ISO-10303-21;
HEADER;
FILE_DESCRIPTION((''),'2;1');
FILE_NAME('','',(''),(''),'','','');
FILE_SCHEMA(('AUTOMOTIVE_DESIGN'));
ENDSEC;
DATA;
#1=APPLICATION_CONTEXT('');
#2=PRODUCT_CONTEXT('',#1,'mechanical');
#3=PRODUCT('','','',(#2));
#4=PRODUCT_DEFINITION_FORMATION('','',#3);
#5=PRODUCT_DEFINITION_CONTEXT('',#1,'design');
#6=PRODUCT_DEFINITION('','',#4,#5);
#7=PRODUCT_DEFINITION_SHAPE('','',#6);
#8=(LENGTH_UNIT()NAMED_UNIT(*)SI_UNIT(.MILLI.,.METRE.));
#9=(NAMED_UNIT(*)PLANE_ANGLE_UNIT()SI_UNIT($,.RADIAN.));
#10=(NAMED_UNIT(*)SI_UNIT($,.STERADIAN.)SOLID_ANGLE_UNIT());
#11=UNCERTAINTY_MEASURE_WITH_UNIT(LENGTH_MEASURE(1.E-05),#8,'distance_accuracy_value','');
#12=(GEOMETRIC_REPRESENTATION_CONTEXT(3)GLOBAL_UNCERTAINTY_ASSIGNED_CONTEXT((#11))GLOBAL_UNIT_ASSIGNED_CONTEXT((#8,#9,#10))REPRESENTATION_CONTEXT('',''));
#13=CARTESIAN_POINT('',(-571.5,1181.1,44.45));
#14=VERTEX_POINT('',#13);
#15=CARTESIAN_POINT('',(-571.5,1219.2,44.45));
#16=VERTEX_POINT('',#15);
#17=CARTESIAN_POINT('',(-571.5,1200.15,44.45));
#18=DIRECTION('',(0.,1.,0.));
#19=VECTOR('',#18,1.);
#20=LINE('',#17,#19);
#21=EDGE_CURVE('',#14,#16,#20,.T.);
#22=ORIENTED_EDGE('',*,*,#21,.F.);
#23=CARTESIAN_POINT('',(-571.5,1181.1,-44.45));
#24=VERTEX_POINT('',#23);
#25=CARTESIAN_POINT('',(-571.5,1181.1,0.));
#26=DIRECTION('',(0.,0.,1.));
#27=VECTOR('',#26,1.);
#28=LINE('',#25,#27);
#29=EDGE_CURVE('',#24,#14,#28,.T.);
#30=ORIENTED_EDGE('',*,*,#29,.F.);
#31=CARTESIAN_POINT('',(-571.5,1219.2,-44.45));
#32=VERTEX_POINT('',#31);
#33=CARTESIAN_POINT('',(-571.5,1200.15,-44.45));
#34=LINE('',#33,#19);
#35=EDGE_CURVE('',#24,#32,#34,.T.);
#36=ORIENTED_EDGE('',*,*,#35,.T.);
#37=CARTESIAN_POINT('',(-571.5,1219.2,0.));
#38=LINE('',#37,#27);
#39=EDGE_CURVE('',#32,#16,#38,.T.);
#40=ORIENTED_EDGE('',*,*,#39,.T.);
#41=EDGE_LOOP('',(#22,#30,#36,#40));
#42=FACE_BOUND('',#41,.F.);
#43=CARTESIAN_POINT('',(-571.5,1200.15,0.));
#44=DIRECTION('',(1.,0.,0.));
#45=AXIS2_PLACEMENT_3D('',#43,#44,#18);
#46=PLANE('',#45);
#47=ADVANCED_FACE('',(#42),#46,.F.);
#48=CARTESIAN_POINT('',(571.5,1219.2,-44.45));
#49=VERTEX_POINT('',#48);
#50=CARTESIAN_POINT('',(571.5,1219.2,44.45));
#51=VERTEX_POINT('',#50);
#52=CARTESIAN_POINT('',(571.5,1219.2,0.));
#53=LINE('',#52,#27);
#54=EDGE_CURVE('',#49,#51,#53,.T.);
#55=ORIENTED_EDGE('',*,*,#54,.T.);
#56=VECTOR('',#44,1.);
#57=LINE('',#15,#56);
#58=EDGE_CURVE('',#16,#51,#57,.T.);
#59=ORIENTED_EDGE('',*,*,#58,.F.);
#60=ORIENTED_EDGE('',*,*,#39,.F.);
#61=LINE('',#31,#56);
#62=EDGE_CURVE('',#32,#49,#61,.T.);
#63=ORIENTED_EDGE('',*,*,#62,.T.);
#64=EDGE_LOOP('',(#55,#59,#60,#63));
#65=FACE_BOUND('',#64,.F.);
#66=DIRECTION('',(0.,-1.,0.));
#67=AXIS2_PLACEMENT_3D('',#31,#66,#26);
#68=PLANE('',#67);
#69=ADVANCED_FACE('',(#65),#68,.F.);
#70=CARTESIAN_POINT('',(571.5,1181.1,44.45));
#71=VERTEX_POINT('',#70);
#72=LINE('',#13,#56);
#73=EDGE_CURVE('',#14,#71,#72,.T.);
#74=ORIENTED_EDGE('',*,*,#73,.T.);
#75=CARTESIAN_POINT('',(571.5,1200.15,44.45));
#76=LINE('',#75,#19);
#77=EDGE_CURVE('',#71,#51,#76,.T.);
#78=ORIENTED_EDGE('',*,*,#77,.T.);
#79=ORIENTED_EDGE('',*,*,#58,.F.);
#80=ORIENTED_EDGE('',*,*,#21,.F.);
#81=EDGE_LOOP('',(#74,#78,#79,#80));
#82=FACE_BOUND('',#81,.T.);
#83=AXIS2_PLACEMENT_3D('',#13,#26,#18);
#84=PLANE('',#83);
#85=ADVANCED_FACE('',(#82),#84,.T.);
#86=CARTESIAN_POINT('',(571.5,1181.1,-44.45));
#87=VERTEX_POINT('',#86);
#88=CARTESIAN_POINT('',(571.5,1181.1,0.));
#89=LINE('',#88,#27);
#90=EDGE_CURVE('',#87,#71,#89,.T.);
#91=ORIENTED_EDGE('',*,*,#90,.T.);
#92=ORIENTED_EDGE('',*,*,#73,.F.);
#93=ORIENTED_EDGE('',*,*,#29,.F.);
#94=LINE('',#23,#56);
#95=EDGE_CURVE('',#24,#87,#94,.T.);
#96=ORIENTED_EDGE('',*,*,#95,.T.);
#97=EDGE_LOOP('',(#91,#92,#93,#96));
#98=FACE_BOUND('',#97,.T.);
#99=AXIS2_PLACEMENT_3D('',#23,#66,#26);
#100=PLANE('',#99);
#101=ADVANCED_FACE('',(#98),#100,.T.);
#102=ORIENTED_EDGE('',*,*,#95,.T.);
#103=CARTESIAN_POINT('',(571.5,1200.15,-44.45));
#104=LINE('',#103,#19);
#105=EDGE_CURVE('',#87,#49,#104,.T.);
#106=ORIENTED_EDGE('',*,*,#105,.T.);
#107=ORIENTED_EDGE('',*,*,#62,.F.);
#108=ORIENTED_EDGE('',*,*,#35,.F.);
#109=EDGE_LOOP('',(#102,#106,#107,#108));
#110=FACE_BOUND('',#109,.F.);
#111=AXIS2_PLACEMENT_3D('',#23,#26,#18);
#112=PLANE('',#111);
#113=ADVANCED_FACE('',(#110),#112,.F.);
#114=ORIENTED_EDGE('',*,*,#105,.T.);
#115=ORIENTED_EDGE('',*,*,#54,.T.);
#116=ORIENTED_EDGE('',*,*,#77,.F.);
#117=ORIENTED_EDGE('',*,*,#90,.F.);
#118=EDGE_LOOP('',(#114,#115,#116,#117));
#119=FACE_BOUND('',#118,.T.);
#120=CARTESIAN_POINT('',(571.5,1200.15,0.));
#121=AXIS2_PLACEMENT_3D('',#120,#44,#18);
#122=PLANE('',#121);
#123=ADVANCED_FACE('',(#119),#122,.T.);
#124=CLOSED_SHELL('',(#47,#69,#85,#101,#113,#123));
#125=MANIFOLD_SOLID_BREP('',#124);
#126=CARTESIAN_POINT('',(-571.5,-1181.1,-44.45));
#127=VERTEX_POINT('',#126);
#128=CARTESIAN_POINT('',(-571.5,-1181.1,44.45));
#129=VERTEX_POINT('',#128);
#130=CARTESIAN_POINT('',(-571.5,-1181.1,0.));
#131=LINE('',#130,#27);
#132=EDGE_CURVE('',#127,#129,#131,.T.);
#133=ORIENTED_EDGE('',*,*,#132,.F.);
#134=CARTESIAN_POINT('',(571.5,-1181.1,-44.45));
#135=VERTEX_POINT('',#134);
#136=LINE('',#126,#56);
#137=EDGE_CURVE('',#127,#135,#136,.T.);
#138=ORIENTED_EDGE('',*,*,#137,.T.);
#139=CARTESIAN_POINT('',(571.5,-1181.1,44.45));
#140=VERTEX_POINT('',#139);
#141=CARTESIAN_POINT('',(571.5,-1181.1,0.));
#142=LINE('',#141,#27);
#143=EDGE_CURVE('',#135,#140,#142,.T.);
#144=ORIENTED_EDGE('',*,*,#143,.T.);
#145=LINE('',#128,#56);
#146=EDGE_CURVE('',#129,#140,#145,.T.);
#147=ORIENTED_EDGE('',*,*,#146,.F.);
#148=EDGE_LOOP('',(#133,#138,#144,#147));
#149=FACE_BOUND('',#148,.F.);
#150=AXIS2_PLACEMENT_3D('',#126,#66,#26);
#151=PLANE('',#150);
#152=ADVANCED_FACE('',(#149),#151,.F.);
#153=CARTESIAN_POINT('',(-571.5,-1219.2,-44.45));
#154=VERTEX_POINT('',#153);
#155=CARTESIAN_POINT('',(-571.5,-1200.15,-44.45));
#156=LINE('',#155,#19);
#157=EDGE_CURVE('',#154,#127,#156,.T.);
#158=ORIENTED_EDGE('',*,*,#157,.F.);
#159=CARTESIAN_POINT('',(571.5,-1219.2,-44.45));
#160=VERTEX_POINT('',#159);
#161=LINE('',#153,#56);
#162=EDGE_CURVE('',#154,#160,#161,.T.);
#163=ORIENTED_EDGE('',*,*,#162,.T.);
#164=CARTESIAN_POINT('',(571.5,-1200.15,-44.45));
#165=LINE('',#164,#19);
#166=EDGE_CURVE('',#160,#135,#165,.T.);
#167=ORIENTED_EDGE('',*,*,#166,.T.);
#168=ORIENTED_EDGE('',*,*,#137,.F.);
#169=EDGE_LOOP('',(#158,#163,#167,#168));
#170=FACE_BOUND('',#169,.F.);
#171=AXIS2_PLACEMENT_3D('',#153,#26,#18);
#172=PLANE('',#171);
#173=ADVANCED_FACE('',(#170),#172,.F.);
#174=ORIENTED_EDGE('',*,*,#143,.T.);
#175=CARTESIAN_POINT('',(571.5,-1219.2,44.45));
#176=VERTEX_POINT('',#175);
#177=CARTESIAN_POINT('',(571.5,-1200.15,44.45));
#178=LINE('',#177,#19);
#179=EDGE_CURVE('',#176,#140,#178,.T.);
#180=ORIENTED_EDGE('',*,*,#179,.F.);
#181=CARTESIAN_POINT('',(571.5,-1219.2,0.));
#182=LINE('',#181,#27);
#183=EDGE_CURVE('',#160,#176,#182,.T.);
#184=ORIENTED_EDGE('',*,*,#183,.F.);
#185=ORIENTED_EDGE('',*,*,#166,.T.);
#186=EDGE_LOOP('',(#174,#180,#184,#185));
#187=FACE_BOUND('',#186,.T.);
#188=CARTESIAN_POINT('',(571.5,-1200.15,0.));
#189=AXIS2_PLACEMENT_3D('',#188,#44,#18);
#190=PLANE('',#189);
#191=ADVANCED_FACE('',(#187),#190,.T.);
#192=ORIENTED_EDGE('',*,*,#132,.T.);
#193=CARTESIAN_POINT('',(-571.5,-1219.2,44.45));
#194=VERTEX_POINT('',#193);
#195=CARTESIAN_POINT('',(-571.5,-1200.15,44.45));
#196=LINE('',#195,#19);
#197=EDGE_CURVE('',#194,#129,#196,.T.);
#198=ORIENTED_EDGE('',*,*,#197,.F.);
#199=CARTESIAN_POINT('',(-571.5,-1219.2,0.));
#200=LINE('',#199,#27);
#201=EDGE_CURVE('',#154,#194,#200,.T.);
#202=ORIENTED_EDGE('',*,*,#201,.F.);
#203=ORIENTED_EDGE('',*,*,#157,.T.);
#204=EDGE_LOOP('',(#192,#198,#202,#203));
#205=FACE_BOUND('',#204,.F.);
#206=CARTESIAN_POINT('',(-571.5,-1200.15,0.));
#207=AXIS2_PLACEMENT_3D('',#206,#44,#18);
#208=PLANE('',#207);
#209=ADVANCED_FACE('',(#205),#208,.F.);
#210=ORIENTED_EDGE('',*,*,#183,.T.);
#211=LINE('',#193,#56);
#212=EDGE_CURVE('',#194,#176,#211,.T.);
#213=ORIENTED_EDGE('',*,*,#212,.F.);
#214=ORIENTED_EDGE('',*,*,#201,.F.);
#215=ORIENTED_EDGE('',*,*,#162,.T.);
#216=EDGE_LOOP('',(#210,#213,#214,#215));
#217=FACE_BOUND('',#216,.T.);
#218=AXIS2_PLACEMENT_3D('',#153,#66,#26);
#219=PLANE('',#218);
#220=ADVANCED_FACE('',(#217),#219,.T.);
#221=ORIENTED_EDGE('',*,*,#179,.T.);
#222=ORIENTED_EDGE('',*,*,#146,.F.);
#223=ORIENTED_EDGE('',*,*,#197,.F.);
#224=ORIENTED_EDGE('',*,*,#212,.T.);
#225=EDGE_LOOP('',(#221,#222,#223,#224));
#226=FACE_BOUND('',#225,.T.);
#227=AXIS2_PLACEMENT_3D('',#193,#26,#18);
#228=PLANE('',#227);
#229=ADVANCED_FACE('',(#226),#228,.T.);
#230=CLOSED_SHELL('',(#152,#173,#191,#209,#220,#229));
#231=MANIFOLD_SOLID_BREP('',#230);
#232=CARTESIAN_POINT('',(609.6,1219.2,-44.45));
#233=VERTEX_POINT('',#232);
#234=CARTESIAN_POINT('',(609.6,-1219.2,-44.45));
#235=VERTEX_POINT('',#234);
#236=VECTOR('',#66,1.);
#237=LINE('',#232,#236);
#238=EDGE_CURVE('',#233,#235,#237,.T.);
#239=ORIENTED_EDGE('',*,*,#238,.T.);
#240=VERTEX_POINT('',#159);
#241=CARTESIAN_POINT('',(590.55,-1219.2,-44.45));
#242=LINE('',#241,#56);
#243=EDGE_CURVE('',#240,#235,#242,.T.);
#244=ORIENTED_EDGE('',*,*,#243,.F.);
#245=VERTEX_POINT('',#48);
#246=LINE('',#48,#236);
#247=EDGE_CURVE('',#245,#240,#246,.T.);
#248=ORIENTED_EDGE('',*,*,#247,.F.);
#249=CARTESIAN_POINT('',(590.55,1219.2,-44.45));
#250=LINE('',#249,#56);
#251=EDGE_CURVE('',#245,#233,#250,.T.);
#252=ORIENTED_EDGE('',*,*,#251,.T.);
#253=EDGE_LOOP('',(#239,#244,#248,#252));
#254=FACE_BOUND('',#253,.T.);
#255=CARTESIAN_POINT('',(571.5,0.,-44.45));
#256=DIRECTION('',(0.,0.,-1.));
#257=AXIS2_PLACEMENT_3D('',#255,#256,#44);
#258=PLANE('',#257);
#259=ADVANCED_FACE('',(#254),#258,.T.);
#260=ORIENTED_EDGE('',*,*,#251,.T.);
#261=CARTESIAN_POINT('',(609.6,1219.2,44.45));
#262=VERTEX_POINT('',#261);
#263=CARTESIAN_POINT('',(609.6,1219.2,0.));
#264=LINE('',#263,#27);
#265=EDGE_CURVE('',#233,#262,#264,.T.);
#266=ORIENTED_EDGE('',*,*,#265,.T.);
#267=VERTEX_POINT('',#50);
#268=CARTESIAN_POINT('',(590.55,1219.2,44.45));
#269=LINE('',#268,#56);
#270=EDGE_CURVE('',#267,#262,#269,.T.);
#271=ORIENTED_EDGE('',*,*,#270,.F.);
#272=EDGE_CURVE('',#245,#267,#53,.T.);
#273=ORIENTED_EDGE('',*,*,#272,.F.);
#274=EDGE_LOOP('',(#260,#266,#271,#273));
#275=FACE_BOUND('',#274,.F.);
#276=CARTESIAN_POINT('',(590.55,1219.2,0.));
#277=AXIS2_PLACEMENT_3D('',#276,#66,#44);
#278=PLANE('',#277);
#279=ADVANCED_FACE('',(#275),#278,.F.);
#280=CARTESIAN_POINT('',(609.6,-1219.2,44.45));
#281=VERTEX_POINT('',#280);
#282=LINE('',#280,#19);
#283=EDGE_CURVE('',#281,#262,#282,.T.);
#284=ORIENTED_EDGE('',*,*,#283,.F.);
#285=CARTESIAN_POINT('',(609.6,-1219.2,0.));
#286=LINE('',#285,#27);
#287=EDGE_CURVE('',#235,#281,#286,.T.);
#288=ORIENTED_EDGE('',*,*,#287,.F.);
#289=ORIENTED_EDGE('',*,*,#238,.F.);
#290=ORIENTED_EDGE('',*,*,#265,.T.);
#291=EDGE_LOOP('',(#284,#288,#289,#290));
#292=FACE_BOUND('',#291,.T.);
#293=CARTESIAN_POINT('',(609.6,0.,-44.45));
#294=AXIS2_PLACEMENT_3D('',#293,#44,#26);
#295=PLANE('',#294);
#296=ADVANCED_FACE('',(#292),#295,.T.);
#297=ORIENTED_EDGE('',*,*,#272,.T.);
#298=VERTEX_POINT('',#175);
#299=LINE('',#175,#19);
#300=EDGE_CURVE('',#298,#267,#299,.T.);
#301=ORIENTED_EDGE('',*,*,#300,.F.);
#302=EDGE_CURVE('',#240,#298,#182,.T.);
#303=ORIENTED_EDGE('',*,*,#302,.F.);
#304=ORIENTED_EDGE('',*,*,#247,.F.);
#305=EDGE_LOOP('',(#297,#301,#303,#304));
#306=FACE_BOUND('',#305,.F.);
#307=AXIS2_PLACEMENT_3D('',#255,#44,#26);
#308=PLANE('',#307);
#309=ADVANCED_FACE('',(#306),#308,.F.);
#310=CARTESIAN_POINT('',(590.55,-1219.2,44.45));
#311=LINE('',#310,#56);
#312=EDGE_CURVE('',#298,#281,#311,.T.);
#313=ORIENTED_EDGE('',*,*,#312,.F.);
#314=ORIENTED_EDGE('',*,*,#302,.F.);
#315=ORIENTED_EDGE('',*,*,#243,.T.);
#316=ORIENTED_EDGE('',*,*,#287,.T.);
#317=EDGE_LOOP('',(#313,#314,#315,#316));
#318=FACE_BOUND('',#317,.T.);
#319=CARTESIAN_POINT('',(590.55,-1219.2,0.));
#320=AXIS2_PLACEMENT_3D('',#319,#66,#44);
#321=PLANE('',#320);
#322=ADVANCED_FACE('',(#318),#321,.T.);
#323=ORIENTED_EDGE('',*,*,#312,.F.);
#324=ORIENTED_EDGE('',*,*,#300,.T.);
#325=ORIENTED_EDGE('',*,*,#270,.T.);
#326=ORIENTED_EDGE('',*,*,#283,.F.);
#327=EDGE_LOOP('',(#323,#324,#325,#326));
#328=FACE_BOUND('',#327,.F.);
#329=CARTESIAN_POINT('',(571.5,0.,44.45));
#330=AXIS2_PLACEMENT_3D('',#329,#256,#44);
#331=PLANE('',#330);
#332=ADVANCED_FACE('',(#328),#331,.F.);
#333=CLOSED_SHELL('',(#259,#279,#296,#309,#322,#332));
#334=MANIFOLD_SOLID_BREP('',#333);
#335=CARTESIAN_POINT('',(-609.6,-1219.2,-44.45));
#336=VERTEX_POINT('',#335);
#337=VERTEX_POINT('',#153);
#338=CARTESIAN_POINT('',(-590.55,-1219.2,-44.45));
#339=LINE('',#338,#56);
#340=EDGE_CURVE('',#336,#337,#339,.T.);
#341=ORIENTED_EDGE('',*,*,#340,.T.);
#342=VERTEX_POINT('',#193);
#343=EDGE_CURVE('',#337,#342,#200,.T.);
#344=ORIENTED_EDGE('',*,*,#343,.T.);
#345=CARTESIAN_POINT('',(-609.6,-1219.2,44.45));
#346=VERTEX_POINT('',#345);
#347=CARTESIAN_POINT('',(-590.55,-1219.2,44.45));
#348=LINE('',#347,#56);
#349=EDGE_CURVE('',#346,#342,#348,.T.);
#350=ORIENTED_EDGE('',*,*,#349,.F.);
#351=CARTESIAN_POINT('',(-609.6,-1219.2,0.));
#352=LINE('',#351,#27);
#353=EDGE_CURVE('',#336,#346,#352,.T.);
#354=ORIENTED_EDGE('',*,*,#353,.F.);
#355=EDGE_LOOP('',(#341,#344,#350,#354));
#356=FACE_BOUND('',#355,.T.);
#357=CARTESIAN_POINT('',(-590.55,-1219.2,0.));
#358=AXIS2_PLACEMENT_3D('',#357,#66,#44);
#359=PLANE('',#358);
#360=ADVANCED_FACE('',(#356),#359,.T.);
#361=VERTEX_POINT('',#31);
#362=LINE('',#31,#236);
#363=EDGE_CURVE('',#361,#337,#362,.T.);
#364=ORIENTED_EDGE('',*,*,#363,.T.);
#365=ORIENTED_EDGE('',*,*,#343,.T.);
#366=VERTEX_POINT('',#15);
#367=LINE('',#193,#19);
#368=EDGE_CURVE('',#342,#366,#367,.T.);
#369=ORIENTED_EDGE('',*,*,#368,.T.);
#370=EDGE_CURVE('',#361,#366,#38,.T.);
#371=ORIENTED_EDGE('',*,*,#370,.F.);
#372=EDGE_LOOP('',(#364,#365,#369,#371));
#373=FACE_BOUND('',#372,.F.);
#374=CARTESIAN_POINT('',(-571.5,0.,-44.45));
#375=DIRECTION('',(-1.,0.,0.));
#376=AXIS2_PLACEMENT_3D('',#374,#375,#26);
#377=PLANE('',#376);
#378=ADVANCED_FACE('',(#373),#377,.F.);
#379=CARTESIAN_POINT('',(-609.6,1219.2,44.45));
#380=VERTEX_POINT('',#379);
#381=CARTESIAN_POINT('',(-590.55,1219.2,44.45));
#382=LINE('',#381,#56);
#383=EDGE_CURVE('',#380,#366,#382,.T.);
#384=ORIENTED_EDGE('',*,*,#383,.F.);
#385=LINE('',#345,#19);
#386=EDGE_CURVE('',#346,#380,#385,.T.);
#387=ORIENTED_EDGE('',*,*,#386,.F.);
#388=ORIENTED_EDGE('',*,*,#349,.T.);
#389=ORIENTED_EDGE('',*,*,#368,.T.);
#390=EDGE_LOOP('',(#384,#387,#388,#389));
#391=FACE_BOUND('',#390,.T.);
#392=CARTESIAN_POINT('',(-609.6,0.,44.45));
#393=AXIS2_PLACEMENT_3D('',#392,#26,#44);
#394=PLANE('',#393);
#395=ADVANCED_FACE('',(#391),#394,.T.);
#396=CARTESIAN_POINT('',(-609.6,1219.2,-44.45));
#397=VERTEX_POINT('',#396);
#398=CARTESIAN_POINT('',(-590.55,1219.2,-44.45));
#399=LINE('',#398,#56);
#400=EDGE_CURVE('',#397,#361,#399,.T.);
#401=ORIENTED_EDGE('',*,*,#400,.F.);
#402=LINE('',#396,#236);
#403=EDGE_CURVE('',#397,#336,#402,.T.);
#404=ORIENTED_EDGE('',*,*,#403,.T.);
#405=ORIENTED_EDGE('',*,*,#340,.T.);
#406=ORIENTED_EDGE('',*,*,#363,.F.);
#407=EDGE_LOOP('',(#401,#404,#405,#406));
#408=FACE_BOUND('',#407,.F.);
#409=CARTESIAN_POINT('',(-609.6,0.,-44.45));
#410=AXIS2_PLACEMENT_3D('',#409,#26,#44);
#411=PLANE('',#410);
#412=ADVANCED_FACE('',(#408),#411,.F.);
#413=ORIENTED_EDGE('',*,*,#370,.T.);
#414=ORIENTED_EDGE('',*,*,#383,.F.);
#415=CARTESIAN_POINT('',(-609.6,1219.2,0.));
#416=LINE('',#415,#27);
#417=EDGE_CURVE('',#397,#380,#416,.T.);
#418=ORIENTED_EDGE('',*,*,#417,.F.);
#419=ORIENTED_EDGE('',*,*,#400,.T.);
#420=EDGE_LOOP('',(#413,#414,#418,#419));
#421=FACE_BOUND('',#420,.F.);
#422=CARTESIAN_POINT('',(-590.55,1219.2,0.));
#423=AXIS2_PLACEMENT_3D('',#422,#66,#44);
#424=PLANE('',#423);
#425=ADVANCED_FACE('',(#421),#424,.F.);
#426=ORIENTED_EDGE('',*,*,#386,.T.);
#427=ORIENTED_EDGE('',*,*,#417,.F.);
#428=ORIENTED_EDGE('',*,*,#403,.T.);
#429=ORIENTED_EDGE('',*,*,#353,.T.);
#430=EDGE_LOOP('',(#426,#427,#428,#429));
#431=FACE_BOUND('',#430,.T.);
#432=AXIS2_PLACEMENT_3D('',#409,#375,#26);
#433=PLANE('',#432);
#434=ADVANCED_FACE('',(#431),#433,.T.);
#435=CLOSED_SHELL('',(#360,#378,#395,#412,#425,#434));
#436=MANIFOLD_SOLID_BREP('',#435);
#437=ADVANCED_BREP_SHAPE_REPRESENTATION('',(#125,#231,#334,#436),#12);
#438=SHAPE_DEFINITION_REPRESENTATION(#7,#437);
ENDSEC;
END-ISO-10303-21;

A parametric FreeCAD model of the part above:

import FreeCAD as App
import Part
import Sketcher
from FreeCAD import Vector
Q = App.Units.Quantity


def add_polygon(sketch, points):
    """Adds a closed chain of lines whose ends are joined by coincident constraints."""
    first, n = sketch.GeometryCount, len(points)
    for a, b in zip(points, points[1:] + points[:1]):
        sketch.addGeometry(Part.LineSegment(App.Vector(*a, 0), App.Vector(*b, 0)), False)
    for i in range(n):
        sketch.addConstraint(Sketcher.Constraint("Coincident", first + i, 2, first + (i + 1) % n, 1))

doc = App.newDocument("Part")
body = doc.addObject("PartDesign::Body", "Body")
body.AllowCompound = True

# Sketch on XZ plane
sketch1 = body.newObject("Sketcher::SketchObject", "Sketch")
sketch1.AttachmentSupport = (doc.getObject("XZ_Plane"), [""])
sketch1.MapMode = "FlatFace"
add_polygon(sketch1, [(-609.6, 44.45), (-609.6, -44.45), (-571.5, -44.45), (-571.5, 44.45)])  # lines 0-3
add_polygon(sketch1, [(571.5, 44.45), (571.5, -44.45), (609.6, -44.45), (609.6, 44.45)])  # lines 4-7
sketch1.addConstraint([
    Sketcher.Constraint("Vertical", 0),
    Sketcher.Constraint("Horizontal", 1),
    Sketcher.Constraint("Vertical", 2),
    Sketcher.Constraint("Horizontal", 3),
    Sketcher.Constraint("Vertical", 4),
    Sketcher.Constraint("Horizontal", 5),
    Sketcher.Constraint("Vertical", 6),
    Sketcher.Constraint("Horizontal", 7),
    Sketcher.Constraint("Symmetric", 2, 2, 4, 2, -1, 1),
    Sketcher.Constraint("Symmetric", 0, 2, 6, 2, -1, 1),
    Sketcher.Constraint("Horizontal", 1, 2, 4, 2),
    Sketcher.Constraint("DistanceX", 1, 1, 1, 2, Q("1.5 in")),
    Sketcher.Constraint("DistanceY", 0, 2, 0, 1, Q("3.5 in")),
    Sketcher.Constraint("DistanceX", 0, 2, -1, 1, Q("24 in")),
])
pad1 = body.newObject("PartDesign::Pad", "Pad")
pad1.Profile = sketch1
pad1.Length = Q("96 in")
pad1.Midplane = True
body2 = doc.addObject("PartDesign::Body", "Body001")
body2.AllowCompound = True

# Sketch on YZ plane
sketch2 = body2.newObject("Sketcher::SketchObject", "Sketch001")
sketch2.AttachmentSupport = (doc.getObject("YZ_Plane001"), [""])
sketch2.MapMode = "FlatFace"
sketch2.AttachmentOffset = App.Placement(Vector(0, 0, -22.5 * 25.4), App.Rotation())
add_polygon(sketch2, [(-1219.2, 44.45), (-1219.2, -44.45), (-1181.1, -44.45), (-1181.1, 44.45)])  # lines 0-3
add_polygon(sketch2, [(1181.1, 44.45), (1181.1, -44.45), (1219.2, -44.45), (1219.2, 44.45)])  # lines 4-7
sketch2.addConstraint([
    Sketcher.Constraint("Vertical", 0),
    Sketcher.Constraint("Horizontal", 1),
    Sketcher.Constraint("Vertical", 2),
    Sketcher.Constraint("Horizontal", 3),
    Sketcher.Constraint("Vertical", 4),
    Sketcher.Constraint("Horizontal", 5),
    Sketcher.Constraint("Vertical", 6),
    Sketcher.Constraint("Horizontal", 7),
    Sketcher.Constraint("Symmetric", 2, 2, 4, 2, -1, 1),
    Sketcher.Constraint("Symmetric", 0, 2, 6, 2, -1, 1),
    Sketcher.Constraint("Horizontal", 1, 2, 4, 2),
    Sketcher.Constraint("DistanceX", 1, 1, 1, 2, Q("1.5 in")),
    Sketcher.Constraint("DistanceY", 0, 2, 0, 1, Q("3.5 in")),
    Sketcher.Constraint("DistanceX", 0, 2, -1, 1, Q("48 in")),
])
pad2 = body2.newObject("PartDesign::Pad", "Pad001")
pad2.Profile = sketch2
pad2.Length = Q("45 in")

doc.recompute()
